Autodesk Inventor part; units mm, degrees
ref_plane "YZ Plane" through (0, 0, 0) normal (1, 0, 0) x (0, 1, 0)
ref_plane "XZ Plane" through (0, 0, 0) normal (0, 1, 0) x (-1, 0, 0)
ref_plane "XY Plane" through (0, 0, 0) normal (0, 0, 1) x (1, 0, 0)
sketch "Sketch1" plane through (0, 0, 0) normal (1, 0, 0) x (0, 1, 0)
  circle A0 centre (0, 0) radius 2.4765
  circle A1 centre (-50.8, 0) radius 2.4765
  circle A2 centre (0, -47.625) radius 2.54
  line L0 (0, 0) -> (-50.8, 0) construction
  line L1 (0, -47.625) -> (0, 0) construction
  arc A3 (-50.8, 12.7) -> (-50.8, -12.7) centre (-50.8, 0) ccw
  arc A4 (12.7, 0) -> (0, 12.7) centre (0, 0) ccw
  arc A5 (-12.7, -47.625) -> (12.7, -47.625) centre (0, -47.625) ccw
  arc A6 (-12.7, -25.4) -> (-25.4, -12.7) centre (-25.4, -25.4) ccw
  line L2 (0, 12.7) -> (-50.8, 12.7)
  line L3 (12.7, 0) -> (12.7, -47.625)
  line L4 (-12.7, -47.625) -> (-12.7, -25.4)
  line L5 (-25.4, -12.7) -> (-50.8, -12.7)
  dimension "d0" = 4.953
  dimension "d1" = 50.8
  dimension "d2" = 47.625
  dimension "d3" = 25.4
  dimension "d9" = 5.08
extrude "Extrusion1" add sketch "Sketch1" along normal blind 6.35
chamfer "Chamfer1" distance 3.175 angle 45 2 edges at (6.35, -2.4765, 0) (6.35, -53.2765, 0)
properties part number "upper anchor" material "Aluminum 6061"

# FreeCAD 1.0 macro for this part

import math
import FreeCAD as App
import Part
import Sketcher
Q = App.Units.Quantity


def edges_at(feature, points):
    """Names of the edges that pass closest to the given points."""
    edges = feature.Shape.Edges
    near = lambda p: min(range(len(edges)), key=lambda i: edges[i].distToShape(Part.Vertex(*p))[0])
    return sorted({f"Edge{near(p) + 1}" for p in points})

doc = App.newDocument("Part")
body = doc.addObject("PartDesign::Body", "Body")

# Sketch on YZ plane
sketch1 = body.newObject("Sketcher::SketchObject", "Sketch")
sketch1.AttachmentSupport = (doc.getObject("YZ_Plane"), [""])
sketch1.MapMode = "FlatFace"
sketch1.addGeometry([
    Part.LineSegment(App.Vector(0, 12.7, 0), App.Vector(-50.8, 12.7, 0)),  # 0
    Part.ArcOfCircle(Part.Circle(App.Vector(-50.8, 0, 0), App.Vector(0, 0, 1), 12.7), math.radians(90), math.radians(270)),  # 1
    Part.LineSegment(App.Vector(-50.8, -12.7, 0), App.Vector(-25.4, -12.7, 0)),  # 2
    Part.ArcOfCircle(Part.Circle(App.Vector(-25.4, -25.4, 0), App.Vector(0, 0, 1), 12.7), math.radians(0), math.radians(90)),  # 3
    Part.LineSegment(App.Vector(-12.7, -25.4, 0), App.Vector(-12.7, -47.6, 0)),  # 4
    Part.ArcOfCircle(Part.Circle(App.Vector(0, -47.6, 0), App.Vector(0, 0, 1), 12.7), math.radians(180), math.radians(360)),  # 5
    Part.LineSegment(App.Vector(12.7, -47.6, 0), App.Vector(12.7, 0, 0)),  # 6
    Part.ArcOfCircle(Part.Circle(App.Vector(0, 0, 0), App.Vector(0, 0, 1), 12.7), math.radians(0), math.radians(90)),  # 7
    Part.Circle(App.Vector(0, -47.6, 0), App.Vector(0, 0, 1), 2.5),  # 8
    Part.Circle(App.Vector(-50.8, 0, 0), App.Vector(0, 0, 1), 2.5),  # 9
    Part.Circle(App.Vector(0, 0, 0), App.Vector(0, 0, 1), 2.5),  # 10
], False)
sketch1.addConstraint([
    Sketcher.Constraint("Tangent", 0, 2, 1, 1),
    Sketcher.Constraint("Tangent", 1, 2, 2, 1),
    Sketcher.Constraint("Tangent", 2, 2, 3, 2),
    Sketcher.Constraint("Tangent", 3, 1, 4, 1),
    Sketcher.Constraint("Tangent", 4, 2, 5, 1),
    Sketcher.Constraint("Tangent", 5, 2, 6, 1),
    Sketcher.Constraint("Tangent", 6, 2, 7, 1),
    Sketcher.Constraint("Tangent", 7, 2, 0, 1),
    Sketcher.Constraint("Horizontal", 0),
    Sketcher.Constraint("Horizontal", 2),
    Sketcher.Constraint("Vertical", 4),
    Sketcher.Constraint("Vertical", 6),
    Sketcher.Constraint("Coincident", 7, 3, -1, 1),
    Sketcher.Constraint("Coincident", 10, 3, -1, 1),
    Sketcher.Constraint("Coincident", 8, 3, 5, 3),
    Sketcher.Constraint("Coincident", 9, 3, 1, 3),
    Sketcher.Constraint("Equal", 1, 3),
    Sketcher.Constraint("Equal", 3, 5),
    Sketcher.Constraint("Equal", 5, 7),
    Sketcher.Constraint("Equal", 9, 10),
    Sketcher.Constraint("Diameter", 8, Q("0.2 in")),
    Sketcher.Constraint("Radius", 1, Q("0.5 in")),
    Sketcher.Constraint("DistanceX", 0, 2, 0, 1, Q("2 in")),
    Sketcher.Constraint("Diameter", 9, Q("0.195 in")),
    Sketcher.Constraint("DistanceY", 6, 1, 6, 2, Q("1.875 in")),
])
pad1 = body.newObject("PartDesign::Pad", "Pad")
pad1.Profile = sketch1
pad1.Length = Q("0.25 in")
doc.recompute()

chamfer = body.newObject("PartDesign::Chamfer", "Chamfer")
chamfer.Base = (pad1, edges_at(pad1, [(6.35, -2.477, 0), (6.35, -53.276, 0)]))
chamfer.Size = Q("0.125 in")

doc.recompute()
